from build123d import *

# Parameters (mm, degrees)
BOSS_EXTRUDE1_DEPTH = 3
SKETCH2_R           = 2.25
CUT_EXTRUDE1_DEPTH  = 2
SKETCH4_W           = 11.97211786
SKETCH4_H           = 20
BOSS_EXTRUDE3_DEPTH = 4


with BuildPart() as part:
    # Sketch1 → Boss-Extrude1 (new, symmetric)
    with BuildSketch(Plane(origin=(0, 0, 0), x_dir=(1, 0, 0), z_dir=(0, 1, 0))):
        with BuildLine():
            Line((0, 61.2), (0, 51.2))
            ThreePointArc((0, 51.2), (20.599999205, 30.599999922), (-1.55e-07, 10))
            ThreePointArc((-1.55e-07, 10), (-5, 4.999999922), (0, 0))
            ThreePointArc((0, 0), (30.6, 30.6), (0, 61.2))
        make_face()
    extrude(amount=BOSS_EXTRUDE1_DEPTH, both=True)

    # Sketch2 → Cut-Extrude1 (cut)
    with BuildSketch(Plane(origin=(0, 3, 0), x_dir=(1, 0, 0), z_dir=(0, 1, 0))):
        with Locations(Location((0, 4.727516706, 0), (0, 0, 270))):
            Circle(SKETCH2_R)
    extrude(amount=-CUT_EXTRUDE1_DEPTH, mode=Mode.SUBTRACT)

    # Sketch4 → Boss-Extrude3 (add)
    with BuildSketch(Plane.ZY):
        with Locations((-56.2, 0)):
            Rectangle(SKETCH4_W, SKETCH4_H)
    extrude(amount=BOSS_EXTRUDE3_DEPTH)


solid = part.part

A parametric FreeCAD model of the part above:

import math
import FreeCAD as App
import Part
import Sketcher

V = App.Vector
Q = App.Units.Quantity


def add_polygon(sketch, points):
    """Adds a closed chain of lines whose ends are joined by coincident constraints."""
    first, n = sketch.GeometryCount, len(points)
    for a, b in zip(points, points[1:] + points[:1]):
        sketch.addGeometry(Part.LineSegment(App.Vector(*a, 0), App.Vector(*b, 0)), False)
    for i in range(n):
        sketch.addConstraint(Sketcher.Constraint("Coincident", first + i, 2, first + (i + 1) % n, 1))

doc = App.newDocument("Part")
body = doc.addObject("PartDesign::Body", "Body")

# Sketch on XZ plane
sketch1 = body.newObject("Sketcher::SketchObject", "Sketch")
sketch1.AttachmentSupport = (doc.getObject("XZ_Plane"), [""])
sketch1.MapMode = "FlatFace"
sketch1.addGeometry([
    Part.LineSegment(V(0, -61.2, 0), V(0, -51.2, 0)),
    Part.ArcOfCircle(Part.Circle(V(-0.000001, -30.6, 0), V(0, 0, 1), 20.6), math.radians(-89.999998), math.radians(89.999998)),
    Part.ArcOfCircle(Part.Circle(V(0, -5, 0), V(0, 0, 1), 5), math.radians(90), math.radians(269.999998)),
    Part.ArcOfCircle(Part.Circle(V(0, -30.6, 0), V(0, 0, 1), 30.6), math.radians(-90), math.radians(90)),
], False)
sketch1.addConstraint([
    Sketcher.Constraint("Coincident", 0, 2, 1, 1),
    Sketcher.Constraint("Tangent", 1, 2, 2, 2),
    Sketcher.Constraint("Tangent", 2, 1, 3, 2),
    Sketcher.Constraint("Coincident", 3, 1, 0, 1),
    Sketcher.Constraint("Vertical", 0),
    Sketcher.Constraint("Coincident", 2, 1, -1, 1),
    Sketcher.Constraint("Coincident", 3, 3, 1, 3),
    Sketcher.Constraint("PointOnObject", 1, 3, -2),
    Sketcher.Constraint("PointOnObject", 0, 2, -2),
    Sketcher.Constraint("Radius", 2, Q("5 mm")),
    Sketcher.Constraint("Radius", 1, Q("20.6 mm")),
])
pad1 = body.newObject("PartDesign::Pad", "Pad")
pad1.Profile = sketch1
pad1.Length = 6
pad1.Midplane = True

# Sketch on XZ plane
sketch2 = body.newObject("Sketcher::SketchObject", "Sketch001")
sketch2.AttachmentSupport = (doc.getObject("XZ_Plane"), [""])
sketch2.MapMode = "FlatFace"
sketch2.AttachmentOffset = App.Placement(V(0, 0, -3), App.Rotation())
sketch2.addGeometry(Part.Circle(V(0, -4.727517, 0), V(0, 0, 1), 2.25), False)
sketch2.addConstraint([
    Sketcher.Constraint("PointOnObject", 0, 3, -2),
    Sketcher.Constraint("Diameter", 0, Q("4.5 mm")),
    Sketcher.Constraint("DistanceY", 0, 3, -1, 1, Q("4.727517 mm")),
])
pocket1 = body.newObject("PartDesign::Pocket", "Pocket")
pocket1.Profile = sketch2
pocket1.Length = 2
pocket1.Reversed = True

# Sketch on YZ plane
sketch3 = body.newObject("Sketcher::SketchObject", "Sketch002")
sketch3.AttachmentSupport = (doc.getObject("YZ_Plane"), [""])
sketch3.MapMode = "FlatFace"
add_polygon(sketch3, [(10, -62.186059), (-10, -62.186059), (-10, -50.213941), (10, -50.213941)])  # lines 0-3
sketch3.addConstraint([
    Sketcher.Constraint("Horizontal", 0),
    Sketcher.Constraint("Vertical", 1),
    Sketcher.Constraint("Horizontal", 2),
    Sketcher.Constraint("Vertical", 3),
    Sketcher.Constraint("DistanceX", 0, 2, 0, 1, Q("20 mm")),
    Sketcher.Constraint("DistanceX", 0, 2, -1, 1, Q("10 mm")),
    Sketcher.Constraint("DistanceY", 1, 1, 1, 2, Q("11.972118 mm")),
    Sketcher.Constraint("DistanceY", 0, 2, -1, 1, Q("62.186059 mm")),
])
pad2 = body.newObject("PartDesign::Pad", "Pad001")
pad2.Profile = sketch3
pad2.Length = 4
pad2.Reversed = True

doc.recompute()
